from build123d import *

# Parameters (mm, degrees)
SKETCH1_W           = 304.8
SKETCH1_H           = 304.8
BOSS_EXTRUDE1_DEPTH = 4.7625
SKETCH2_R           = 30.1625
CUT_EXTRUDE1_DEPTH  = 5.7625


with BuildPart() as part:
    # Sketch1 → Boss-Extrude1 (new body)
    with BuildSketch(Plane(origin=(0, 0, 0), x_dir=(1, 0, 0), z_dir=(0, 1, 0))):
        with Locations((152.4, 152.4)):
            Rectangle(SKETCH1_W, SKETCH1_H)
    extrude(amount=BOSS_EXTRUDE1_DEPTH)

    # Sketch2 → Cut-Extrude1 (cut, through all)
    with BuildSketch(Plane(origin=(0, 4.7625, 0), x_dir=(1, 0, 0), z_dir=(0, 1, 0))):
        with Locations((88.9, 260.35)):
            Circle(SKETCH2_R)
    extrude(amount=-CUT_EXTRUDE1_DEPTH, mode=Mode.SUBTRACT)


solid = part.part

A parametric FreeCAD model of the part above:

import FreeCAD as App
import Part
import Sketcher

V = App.Vector
Q = App.Units.Quantity

doc = App.newDocument("Part")
body = doc.addObject("PartDesign::Body", "Body")

sketch1 = body.newObject("Sketcher::SketchObject", "Sketch")
sketch1.AttachmentSupport = (doc.getObject("XZ_Plane"), [""])
sketch1.MapMode = "FlatFace"
sketch1.addGeometry(Part.LineSegment(V(0, -305, 0), V(0, 0, 0)), False)
sketch1.addGeometry(Part.LineSegment(V(0, 0, 0), V(305, 0, 0)), False)
sketch1.addGeometry(Part.LineSegment(V(305, 0, 0), V(305, -305, 0)), False)
sketch1.addGeometry(Part.LineSegment(V(305, -305, 0), V(0, -305, 0)), False)
sketch1.addConstraint(Sketcher.Constraint("Coincident", 0, 2, 1, 1))
sketch1.addConstraint(Sketcher.Constraint("Coincident", 1, 2, 2, 1))
sketch1.addConstraint(Sketcher.Constraint("Coincident", 2, 2, 3, 1))
sketch1.addConstraint(Sketcher.Constraint("Coincident", 3, 2, 0, 1))
sketch1.addConstraint(Sketcher.Constraint("Vertical", 0))
sketch1.addConstraint(Sketcher.Constraint("Horizontal", 1))
sketch1.addConstraint(Sketcher.Constraint("Vertical", 2))
sketch1.addConstraint(Sketcher.Constraint("Horizontal", 3))
sketch1.addConstraint(Sketcher.Constraint("Coincident", 0, 2, -1, 1))
sketch1.addConstraint(Sketcher.Constraint("Equal", 3, 0))
sketch1.addConstraint(Sketcher.Constraint("DistanceX", 1, 1, 1, 2, Q("12 in")))
pad1 = body.newObject("PartDesign::Pad", "Pad")
pad1.Profile = sketch1
pad1.Length = Q("0.1875 in")
pad1.Reversed = True

sketch2 = body.newObject("Sketcher::SketchObject", "Sketch001")
sketch2.AttachmentSupport = (doc.getObject("XZ_Plane"), [""])
sketch2.MapMode = "FlatFace"
sketch2.AttachmentOffset = App.Placement(V(0, 0, -0.1875 * 25.4), App.Rotation())
sketch2.addGeometry(Part.Circle(V(89, -260, 0), V(0, 0, 1), 30), False)
sketch2.addConstraint(Sketcher.Constraint("Diameter", 0, Q("2.375 in")))
sketch2.addConstraint(Sketcher.Constraint("DistanceX", -1, 1, 0, 3, Q("3.5 in")))
sketch2.addConstraint(Sketcher.Constraint("DistanceY", 0, 3, -1, 1, Q("10.25 in")))
pocket1 = body.newObject("PartDesign::Pocket", "Pocket")
pocket1.Profile = sketch2
pocket1.Type = "ThroughAll"
pocket1.Reversed = True

doc.recompute()
